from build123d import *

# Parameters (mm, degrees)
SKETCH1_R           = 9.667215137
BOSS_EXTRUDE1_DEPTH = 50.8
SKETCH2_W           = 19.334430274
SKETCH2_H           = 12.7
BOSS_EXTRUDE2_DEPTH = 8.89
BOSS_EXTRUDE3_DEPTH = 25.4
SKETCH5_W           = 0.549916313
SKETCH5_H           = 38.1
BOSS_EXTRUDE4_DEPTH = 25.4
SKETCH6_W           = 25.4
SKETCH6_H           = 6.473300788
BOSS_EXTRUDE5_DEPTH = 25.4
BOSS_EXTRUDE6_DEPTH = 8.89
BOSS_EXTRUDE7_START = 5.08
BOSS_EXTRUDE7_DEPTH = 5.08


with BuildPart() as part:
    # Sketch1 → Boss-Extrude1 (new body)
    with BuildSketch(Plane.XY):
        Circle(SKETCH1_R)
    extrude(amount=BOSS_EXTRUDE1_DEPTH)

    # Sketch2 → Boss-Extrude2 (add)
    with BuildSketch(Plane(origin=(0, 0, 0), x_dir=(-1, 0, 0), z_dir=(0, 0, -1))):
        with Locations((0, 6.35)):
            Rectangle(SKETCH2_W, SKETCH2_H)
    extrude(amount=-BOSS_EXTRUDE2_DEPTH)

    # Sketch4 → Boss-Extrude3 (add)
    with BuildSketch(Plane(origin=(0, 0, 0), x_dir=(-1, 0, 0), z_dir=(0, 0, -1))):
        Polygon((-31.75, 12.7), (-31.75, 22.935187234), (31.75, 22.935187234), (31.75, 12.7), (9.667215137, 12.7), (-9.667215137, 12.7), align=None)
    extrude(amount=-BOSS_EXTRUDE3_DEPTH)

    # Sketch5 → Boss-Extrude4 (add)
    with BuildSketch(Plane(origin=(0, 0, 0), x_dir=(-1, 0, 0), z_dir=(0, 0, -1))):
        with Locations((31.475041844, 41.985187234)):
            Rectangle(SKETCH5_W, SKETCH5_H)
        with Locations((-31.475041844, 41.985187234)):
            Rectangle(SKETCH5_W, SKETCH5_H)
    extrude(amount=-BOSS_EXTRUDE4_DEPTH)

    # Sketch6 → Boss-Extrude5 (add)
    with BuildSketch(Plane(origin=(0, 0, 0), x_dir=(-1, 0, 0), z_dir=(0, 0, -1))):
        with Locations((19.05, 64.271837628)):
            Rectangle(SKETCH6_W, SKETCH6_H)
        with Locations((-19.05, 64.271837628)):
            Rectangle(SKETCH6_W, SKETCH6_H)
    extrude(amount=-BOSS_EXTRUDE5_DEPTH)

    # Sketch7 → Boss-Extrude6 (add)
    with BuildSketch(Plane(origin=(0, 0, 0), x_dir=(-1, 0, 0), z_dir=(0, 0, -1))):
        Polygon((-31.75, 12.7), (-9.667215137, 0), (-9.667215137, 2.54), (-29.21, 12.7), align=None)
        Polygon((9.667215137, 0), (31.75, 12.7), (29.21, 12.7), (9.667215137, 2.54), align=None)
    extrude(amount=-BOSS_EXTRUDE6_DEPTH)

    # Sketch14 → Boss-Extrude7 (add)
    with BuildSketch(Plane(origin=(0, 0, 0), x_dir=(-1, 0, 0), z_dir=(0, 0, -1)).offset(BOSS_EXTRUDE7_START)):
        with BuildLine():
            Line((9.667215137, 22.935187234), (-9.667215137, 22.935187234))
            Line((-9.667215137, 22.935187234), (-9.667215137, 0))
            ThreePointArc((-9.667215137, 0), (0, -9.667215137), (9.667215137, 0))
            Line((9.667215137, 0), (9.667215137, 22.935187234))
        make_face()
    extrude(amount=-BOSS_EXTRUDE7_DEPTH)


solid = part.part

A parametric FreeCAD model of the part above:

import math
import FreeCAD as App
import Part
import Sketcher
from FreeCAD import Vector
Q = App.Units.Quantity

doc = App.newDocument("Part")
params = doc.addObject("Spreadsheet::Sheet", "Params")
for row, (alias, value) in enumerate([
    ("pad1_length", "2 in"),
    ("sketch2_height", "0.5 in"),
    ("pad2_length", "0.35 in"),
    ("sketch3_width", "2.5 in"),
    ("pad3_length", "1 in"),
    ("sketch4_height", "1.5 in"),
    ("pad4_length", "1 in"),
    ("sketch5_width", "1 in"),
    ("pad5_length", "1 in"),
    ("sketch6_width", "0.1 in"),
    ("pad6_length", "0.35 in"),
    ("pad7_length", "0.2 in"),
], start=1):
    params.set(f"A{row}", alias)
    params.set(f"B{row}", "=" + value)
    params.setAlias(f"B{row}", alias)

body = doc.addObject("PartDesign::Body", "Body")

sketch1 = doc.addObject("Sketcher::SketchObject", "Sketch")
body.addObject(sketch1)
sketch1.AttachmentSupport = (doc.XY_Plane, [""])
sketch1.MapMode = "FlatFace"
sketch1.addGeometry(Part.Circle(Vector(0, 0, 0), Vector(0, 0, 1), 10), False)
sketch1.addConstraint(Sketcher.Constraint("Coincident", 0, 3, -1, 1))
sketch1.addConstraint(Sketcher.Constraint("Diameter", 0, Q("19.33443 mm")))
pad1 = doc.addObject("PartDesign::Pad", "Pad")
body.addObject(pad1)
pad1.Profile = sketch1
pad1.setExpression("Length", "Params.pad1_length")

sketch2 = doc.addObject("Sketcher::SketchObject", "Sketch001")
body.addObject(sketch2)
sketch2.AttachmentSupport = (doc.XY_Plane, [""])
sketch2.MapMode = "FlatFace"
sketch2.addGeometry(Part.LineSegment(Vector(10, 13, 0), Vector(10, 0, 0)), False)
sketch2.addGeometry(Part.LineSegment(Vector(10, 0, 0), Vector(-10, 0, 0)), False)
sketch2.addGeometry(Part.LineSegment(Vector(-10, 0, 0), Vector(-10, 13, 0)), False)
sketch2.addGeometry(Part.LineSegment(Vector(-10, 13, 0), Vector(10, 13, 0)), False)
sketch2.addConstraint(Sketcher.Constraint("Coincident", 0, 2, 1, 1))
sketch2.addConstraint(Sketcher.Constraint("Coincident", 1, 2, 2, 1))
sketch2.addConstraint(Sketcher.Constraint("Coincident", 2, 2, 3, 1))
sketch2.addConstraint(Sketcher.Constraint("Coincident", 3, 2, 0, 1))
sketch2.addConstraint(Sketcher.Constraint("Vertical", 0))
sketch2.addConstraint(Sketcher.Constraint("Horizontal", 1))
sketch2.addConstraint(Sketcher.Constraint("Vertical", 2))
sketch2.addConstraint(Sketcher.Constraint("Horizontal", 3))
sketch2.addConstraint(Sketcher.Constraint("Symmetric", 0, 2, 1, 2, -1, 1))
sketch2.addConstraint(Sketcher.Constraint("DistanceY", 0, 2, 0, 1, Q("0.5 in")))
sketch2.addConstraint(Sketcher.Constraint("DistanceX", 1, 2, 1, 1, Q("19.33443 mm")))
sketch2.setExpression("Constraints[9]", "Params.sketch2_height")
pad2 = doc.addObject("PartDesign::Pad", "Pad001")
body.addObject(pad2)
pad2.Profile = sketch2
pad2.setExpression("Length", "Params.pad2_length")

sketch3 = doc.addObject("Sketcher::SketchObject", "Sketch002")
body.addObject(sketch3)
sketch3.AttachmentSupport = (doc.XY_Plane, [""])
sketch3.MapMode = "FlatFace"
sketch3.addGeometry(Part.LineSegment(Vector(32, 23, 0), Vector(32, 13, 0)), False)
sketch3.addGeometry(Part.LineSegment(Vector(32, 13, 0), Vector(-32, 13, 0)), False)
sketch3.addGeometry(Part.LineSegment(Vector(-32, 13, 0), Vector(-32, 23, 0)), False)
sketch3.addGeometry(Part.LineSegment(Vector(-32, 23, 0), Vector(32, 23, 0)), False)
sketch3.addConstraint(Sketcher.Constraint("Coincident", 0, 2, 1, 1))
sketch3.addConstraint(Sketcher.Constraint("Coincident", 1, 2, 2, 1))
sketch3.addConstraint(Sketcher.Constraint("Coincident", 2, 2, 3, 1))
sketch3.addConstraint(Sketcher.Constraint("Coincident", 3, 2, 0, 1))
sketch3.addConstraint(Sketcher.Constraint("Vertical", 0))
sketch3.addConstraint(Sketcher.Constraint("Horizontal", 1))
sketch3.addConstraint(Sketcher.Constraint("Vertical", 2))
sketch3.addConstraint(Sketcher.Constraint("Horizontal", 3))
sketch3.addConstraint(Sketcher.Constraint("DistanceX", 1, 2, 1, 1, Q("2.5 in")))
sketch3.addConstraint(Sketcher.Constraint("DistanceY", -1, 1, 0, 2, Q("0.5 in")))
sketch3.addConstraint(Sketcher.Constraint("DistanceX", -1, 1, 0, 2, Q("1.25 in")))
sketch3.addConstraint(Sketcher.Constraint("DistanceY", 0, 2, 0, 1, Q("10.235187 mm")))
sketch3.setExpression("Constraints[8]", "Params.sketch3_width")
pad3 = doc.addObject("PartDesign::Pad", "Pad002")
body.addObject(pad3)
pad3.Profile = sketch3
pad3.setExpression("Length", "Params.pad3_length")

sketch4 = doc.addObject("Sketcher::SketchObject", "Sketch003")
body.addObject(sketch4)
sketch4.AttachmentSupport = (doc.XY_Plane, [""])
sketch4.MapMode = "FlatFace"
sketch4.addGeometry(Part.LineSegment(Vector(-31.2, 61, 0), Vector(-31.2, 22.9, 0)), False)
sketch4.addGeometry(Part.LineSegment(Vector(-31.2, 22.9, 0), Vector(-31.8, 22.9, 0)), False)
sketch4.addGeometry(Part.LineSegment(Vector(-31.8, 22.9, 0), Vector(-31.8, 61, 0)), False)
sketch4.addGeometry(Part.LineSegment(Vector(-31.8, 61, 0), Vector(-31.2, 61, 0)), False)
sketch4.addGeometry(Part.LineSegment(Vector(31.8, 61, 0), Vector(31.8, 22.9, 0)), False)
sketch4.addGeometry(Part.LineSegment(Vector(31.8, 22.9, 0), Vector(31.2, 22.9, 0)), False)
sketch4.addGeometry(Part.LineSegment(Vector(31.2, 22.9, 0), Vector(31.2, 61, 0)), False)
sketch4.addGeometry(Part.LineSegment(Vector(31.2, 61, 0), Vector(31.8, 61, 0)), False)
sketch4.addConstraint(Sketcher.Constraint("Coincident", 0, 2, 1, 1))
sketch4.addConstraint(Sketcher.Constraint("Coincident", 1, 2, 2, 1))
sketch4.addConstraint(Sketcher.Constraint("Coincident", 2, 2, 3, 1))
sketch4.addConstraint(Sketcher.Constraint("Coincident", 3, 2, 0, 1))
sketch4.addConstraint(Sketcher.Constraint("Coincident", 4, 2, 5, 1))
sketch4.addConstraint(Sketcher.Constraint("Coincident", 5, 2, 6, 1))
sketch4.addConstraint(Sketcher.Constraint("Coincident", 6, 2, 7, 1))
sketch4.addConstraint(Sketcher.Constraint("Coincident", 7, 2, 4, 1))
sketch4.addConstraint(Sketcher.Constraint("Vertical", 0))
sketch4.addConstraint(Sketcher.Constraint("Horizontal", 1))
sketch4.addConstraint(Sketcher.Constraint("Vertical", 2))
sketch4.addConstraint(Sketcher.Constraint("Horizontal", 3))
sketch4.addConstraint(Sketcher.Constraint("Vertical", 4))
sketch4.addConstraint(Sketcher.Constraint("Horizontal", 5))
sketch4.addConstraint(Sketcher.Constraint("Vertical", 6))
sketch4.addConstraint(Sketcher.Constraint("Horizontal", 7))
sketch4.addConstraint(Sketcher.Constraint("Symmetric", 1, 2, 4, 2, -2))
sketch4.addConstraint(Sketcher.Constraint("Symmetric", 3, 2, 6, 2, -2))
sketch4.addConstraint(Sketcher.Constraint("DistanceY", 0, 2, 0, 1, Q("1.5 in")))
sketch4.addConstraint(Sketcher.Constraint("DistanceX", 1, 2, 4, 2, Q("2.5 in")))
sketch4.addConstraint(Sketcher.Constraint("DistanceX", 1, 2, 1, 1, Q("0.549916 mm")))
sketch4.addConstraint(Sketcher.Constraint("DistanceY", -1, 1, 0, 2, Q("22.935187 mm")))
sketch4.setExpression("Constraints[18]", "Params.sketch4_height")
pad4 = doc.addObject("PartDesign::Pad", "Pad003")
body.addObject(pad4)
pad4.Profile = sketch4
pad4.setExpression("Length", "Params.pad4_length")

sketch5 = doc.addObject("Sketcher::SketchObject", "Sketch004")
body.addObject(sketch5)
sketch5.AttachmentSupport = (doc.XY_Plane, [""])
sketch5.MapMode = "FlatFace"
sketch5.addGeometry(Part.LineSegment(Vector(-6, 68, 0), Vector(-6, 61, 0)), False)
sketch5.addGeometry(Part.LineSegment(Vector(-6, 61, 0), Vector(-32, 61, 0)), False)
sketch5.addGeometry(Part.LineSegment(Vector(-32, 61, 0), Vector(-32, 68, 0)), False)
sketch5.addGeometry(Part.LineSegment(Vector(-32, 68, 0), Vector(-6, 68, 0)), False)
sketch5.addGeometry(Part.LineSegment(Vector(32, 68, 0), Vector(32, 61, 0)), False)
sketch5.addGeometry(Part.LineSegment(Vector(32, 61, 0), Vector(6, 61, 0)), False)
sketch5.addGeometry(Part.LineSegment(Vector(6, 61, 0), Vector(6, 68, 0)), False)
sketch5.addGeometry(Part.LineSegment(Vector(6, 68, 0), Vector(32, 68, 0)), False)
sketch5.addConstraint(Sketcher.Constraint("Coincident", 0, 2, 1, 1))
sketch5.addConstraint(Sketcher.Constraint("Coincident", 1, 2, 2, 1))
sketch5.addConstraint(Sketcher.Constraint("Coincident", 2, 2, 3, 1))
sketch5.addConstraint(Sketcher.Constraint("Coincident", 3, 2, 0, 1))
sketch5.addConstraint(Sketcher.Constraint("Coincident", 4, 2, 5, 1))
sketch5.addConstraint(Sketcher.Constraint("Coincident", 5, 2, 6, 1))
sketch5.addConstraint(Sketcher.Constraint("Coincident", 6, 2, 7, 1))
sketch5.addConstraint(Sketcher.Constraint("Coincident", 7, 2, 4, 1))
sketch5.addConstraint(Sketcher.Constraint("Vertical", 0))
sketch5.addConstraint(Sketcher.Constraint("Horizontal", 1))
sketch5.addConstraint(Sketcher.Constraint("Vertical", 2))
sketch5.addConstraint(Sketcher.Constraint("Horizontal", 3))
sketch5.addConstraint(Sketcher.Constraint("Vertical", 4))
sketch5.addConstraint(Sketcher.Constraint("Horizontal", 5))
sketch5.addConstraint(Sketcher.Constraint("Vertical", 6))
sketch5.addConstraint(Sketcher.Constraint("Horizontal", 7))
sketch5.addConstraint(Sketcher.Constraint("Symmetric", 1, 2, 4, 2, -2))
sketch5.addConstraint(Sketcher.Constraint("Symmetric", 3, 2, 6, 2, -2))
sketch5.addConstraint(Sketcher.Constraint("DistanceX", 1, 2, 1, 1, Q("1 in")))
sketch5.addConstraint(Sketcher.Constraint("DistanceX", 0, 2, 4, 2, Q("1.5 in")))
sketch5.addConstraint(Sketcher.Constraint("DistanceY", 0, 2, 0, 1, Q("6.473301 mm")))
sketch5.addConstraint(Sketcher.Constraint("DistanceY", -1, 1, 2, 2, Q("67.508488 mm")))
sketch5.setExpression("Constraints[18]", "Params.sketch5_width")
pad5 = doc.addObject("PartDesign::Pad", "Pad004")
body.addObject(pad5)
pad5.Profile = sketch5
pad5.setExpression("Length", "Params.pad5_length")

sketch6 = doc.addObject("Sketcher::SketchObject", "Sketch005")
body.addObject(sketch6)
sketch6.AttachmentSupport = (doc.XY_Plane, [""])
sketch6.MapMode = "FlatFace"
sketch6.addGeometry(Part.LineSegment(Vector(31.8, 12.7, 0), Vector(9.7, 0, 0)), False)
sketch6.addGeometry(Part.LineSegment(Vector(9.7, 0, 0), Vector(9.7, 2.5, 0)), False)
sketch6.addGeometry(Part.LineSegment(Vector(9.7, 2.5, 0), Vector(29.2, 12.7, 0)), False)
sketch6.addGeometry(Part.LineSegment(Vector(29.2, 12.7, 0), Vector(31.8, 12.7, 0)), False)
sketch6.addGeometry(Part.LineSegment(Vector(-9.7, 0, 0), Vector(-31.8, 12.7, 0)), False)
sketch6.addGeometry(Part.LineSegment(Vector(-31.8, 12.7, 0), Vector(-29.2, 12.7, 0)), False)
sketch6.addGeometry(Part.LineSegment(Vector(-29.2, 12.7, 0), Vector(-9.7, 2.5, 0)), False)
sketch6.addGeometry(Part.LineSegment(Vector(-9.7, 2.5, 0), Vector(-9.7, 0, 0)), False)
sketch6.addConstraint(Sketcher.Constraint("Coincident", 0, 2, 1, 1))
sketch6.addConstraint(Sketcher.Constraint("Coincident", 1, 2, 2, 1))
sketch6.addConstraint(Sketcher.Constraint("Coincident", 2, 2, 3, 1))
sketch6.addConstraint(Sketcher.Constraint("Coincident", 3, 2, 0, 1))
sketch6.addConstraint(Sketcher.Constraint("Coincident", 4, 2, 5, 1))
sketch6.addConstraint(Sketcher.Constraint("Coincident", 5, 2, 6, 1))
sketch6.addConstraint(Sketcher.Constraint("Coincident", 6, 2, 7, 1))
sketch6.addConstraint(Sketcher.Constraint("Coincident", 7, 2, 4, 1))
sketch6.addConstraint(Sketcher.Constraint("Vertical", 1))
sketch6.addConstraint(Sketcher.Constraint("Horizontal", 3))
sketch6.addConstraint(Sketcher.Constraint("Horizontal", 5))
sketch6.addConstraint(Sketcher.Constraint("Vertical", 7))
sketch6.addConstraint(Sketcher.Constraint("Symmetric", 0, 2, 7, 2, -1, 1))
sketch6.addConstraint(Sketcher.Constraint("Symmetric", 3, 2, 4, 2, -2))
sketch6.addConstraint(Sketcher.Constraint("PointOnObject", 0, 2, -1))
sketch6.addConstraint(Sketcher.Constraint("Horizontal", 1, 2, 6, 2))
sketch6.addConstraint(Sketcher.Constraint("Equal", 3, 5))
sketch6.addConstraint(Sketcher.Constraint("Equal", 5, 1))
sketch6.addConstraint(Sketcher.Constraint("DistanceX", 3, 1, 3, 2, Q("0.1 in")))
sketch6.addConstraint(Sketcher.Constraint("DistanceY", -1, 1, 2, 2, Q("0.5 in")))
sketch6.addConstraint(Sketcher.Constraint("DistanceX", 4, 2, 2, 2, Q("2.4 in")))
sketch6.addConstraint(Sketcher.Constraint("Distance", 0, Q("25.474289 mm")))
sketch6.setExpression("Constraints[18]", "Params.sketch6_width")
pad6 = doc.addObject("PartDesign::Pad", "Pad005")
body.addObject(pad6)
pad6.Profile = sketch6
pad6.setExpression("Length", "Params.pad6_length")

sketch7 = doc.addObject("Sketcher::SketchObject", "Sketch006")
body.addObject(sketch7)
sketch7.AttachmentSupport = (doc.XY_Plane, [""])
sketch7.MapMode = "FlatFace"
sketch7.AttachmentOffset = App.Placement(Vector(0, 0, -0.2 * 25.4), App.Rotation())
sketch7.addGeometry(Part.LineSegment(Vector(-10, 23, 0), Vector(10, 23, 0)), False)
sketch7.addGeometry(Part.LineSegment(Vector(10, 23, 0), Vector(10, 0, 0)), False)
sketch7.addGeometry(Part.ArcOfCircle(Part.Circle(Vector(0, 0, 0), Vector(0, 0, 1), 10), math.radians(180), math.radians(360)), False)
sketch7.addGeometry(Part.LineSegment(Vector(-10, 0, 0), Vector(-10, 23, 0)), False)
sketch7.addConstraint(Sketcher.Constraint("Coincident", 0, 2, 1, 1))
sketch7.addConstraint(Sketcher.Constraint("Tangent", 1, 2, 2, 2))
sketch7.addConstraint(Sketcher.Constraint("Tangent", 2, 1, 3, 1))
sketch7.addConstraint(Sketcher.Constraint("Coincident", 3, 2, 0, 1))
sketch7.addConstraint(Sketcher.Constraint("Horizontal", 0))
sketch7.addConstraint(Sketcher.Constraint("Vertical", 1))
sketch7.addConstraint(Sketcher.Constraint("Vertical", 3))
sketch7.addConstraint(Sketcher.Constraint("Coincident", 2, 3, -1, 1))
sketch7.addConstraint(Sketcher.Constraint("Radius", 2, Q("9.667215 mm")))
sketch7.addConstraint(Sketcher.Constraint("DistanceY", 1, 2, 1, 1, Q("22.935187 mm")))
pad7 = doc.addObject("PartDesign::Pad", "Pad006")
body.addObject(pad7)
pad7.Profile = sketch7
pad7.setExpression("Length", "Params.pad7_length")

doc.recompute()
